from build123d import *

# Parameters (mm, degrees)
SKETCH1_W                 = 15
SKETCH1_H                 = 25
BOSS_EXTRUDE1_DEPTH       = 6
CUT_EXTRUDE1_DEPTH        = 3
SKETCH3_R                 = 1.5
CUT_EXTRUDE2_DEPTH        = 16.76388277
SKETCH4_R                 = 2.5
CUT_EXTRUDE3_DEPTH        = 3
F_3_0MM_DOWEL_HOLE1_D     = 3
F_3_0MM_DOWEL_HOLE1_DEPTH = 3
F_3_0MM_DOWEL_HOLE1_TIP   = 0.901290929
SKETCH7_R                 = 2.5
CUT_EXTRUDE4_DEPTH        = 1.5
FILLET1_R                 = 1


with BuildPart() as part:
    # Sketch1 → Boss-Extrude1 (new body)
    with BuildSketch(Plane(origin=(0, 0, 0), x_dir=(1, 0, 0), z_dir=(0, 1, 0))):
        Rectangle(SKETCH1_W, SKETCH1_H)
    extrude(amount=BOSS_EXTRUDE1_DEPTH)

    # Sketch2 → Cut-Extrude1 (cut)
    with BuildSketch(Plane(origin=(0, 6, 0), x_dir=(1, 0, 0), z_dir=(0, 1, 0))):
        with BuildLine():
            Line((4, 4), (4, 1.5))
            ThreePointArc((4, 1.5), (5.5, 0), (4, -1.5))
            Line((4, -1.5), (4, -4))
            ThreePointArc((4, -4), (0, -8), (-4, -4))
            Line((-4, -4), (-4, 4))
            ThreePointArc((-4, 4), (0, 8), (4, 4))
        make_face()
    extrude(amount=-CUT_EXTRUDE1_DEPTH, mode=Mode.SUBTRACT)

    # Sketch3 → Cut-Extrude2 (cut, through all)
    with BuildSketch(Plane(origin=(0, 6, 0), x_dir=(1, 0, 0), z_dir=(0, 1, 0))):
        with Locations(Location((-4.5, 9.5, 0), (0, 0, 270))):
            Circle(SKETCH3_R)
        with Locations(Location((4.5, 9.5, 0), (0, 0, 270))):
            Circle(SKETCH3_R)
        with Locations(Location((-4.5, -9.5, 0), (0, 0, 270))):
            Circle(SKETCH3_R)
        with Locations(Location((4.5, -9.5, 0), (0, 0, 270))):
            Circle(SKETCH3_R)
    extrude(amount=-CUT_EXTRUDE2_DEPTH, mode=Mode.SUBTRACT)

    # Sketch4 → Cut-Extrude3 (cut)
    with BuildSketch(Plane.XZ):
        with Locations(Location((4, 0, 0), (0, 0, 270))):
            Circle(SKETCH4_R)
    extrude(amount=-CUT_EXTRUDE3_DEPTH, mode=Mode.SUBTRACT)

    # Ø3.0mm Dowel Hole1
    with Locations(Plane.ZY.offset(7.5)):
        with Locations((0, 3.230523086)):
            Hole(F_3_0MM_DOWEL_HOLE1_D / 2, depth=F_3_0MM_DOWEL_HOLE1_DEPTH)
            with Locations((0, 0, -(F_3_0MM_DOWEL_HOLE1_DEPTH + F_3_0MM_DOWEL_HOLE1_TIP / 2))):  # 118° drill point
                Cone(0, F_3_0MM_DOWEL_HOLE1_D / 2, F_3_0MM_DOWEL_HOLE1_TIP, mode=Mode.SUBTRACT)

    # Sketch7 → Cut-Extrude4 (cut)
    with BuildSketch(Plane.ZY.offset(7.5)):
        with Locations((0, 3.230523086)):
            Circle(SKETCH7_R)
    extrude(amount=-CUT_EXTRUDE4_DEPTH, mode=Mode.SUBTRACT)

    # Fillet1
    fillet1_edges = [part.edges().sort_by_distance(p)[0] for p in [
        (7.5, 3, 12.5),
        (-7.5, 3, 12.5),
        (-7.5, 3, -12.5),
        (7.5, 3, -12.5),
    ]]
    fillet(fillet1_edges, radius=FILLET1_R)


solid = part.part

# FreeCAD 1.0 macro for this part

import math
import FreeCAD as App
import Part
import Sketcher


def edges_at(feature, points):
    """Names of the edges that pass closest to the given points."""
    edges = feature.Shape.Edges
    near = lambda p: min(range(len(edges)), key=lambda i: edges[i].distToShape(Part.Vertex(*p))[0])
    return sorted({f"Edge{near(p) + 1}" for p in points})


def add_polygon(sketch, points):
    """Adds a closed chain of lines whose ends are joined by coincident constraints."""
    first, n = sketch.GeometryCount, len(points)
    for a, b in zip(points, points[1:] + points[:1]):
        sketch.addGeometry(Part.LineSegment(App.Vector(*a, 0), App.Vector(*b, 0)), False)
    for i in range(n):
        sketch.addConstraint(Sketcher.Constraint("Coincident", first + i, 2, first + (i + 1) % n, 1))

doc = App.newDocument("Part")
params = doc.addObject("Spreadsheet::Sheet", "Params")
for row, (alias, value) in enumerate([
    ("sketch1_width", "15 mm"),
    ("sketch1_height", "25 mm"),
    ("pad1_length", "6 mm"),
    ("sketch2_radius", "4 mm"),
    ("sketch2_radius2", "1.5 mm"),
    ("sketch2_height", "8 mm"),
    ("pocket1_length", "3 mm"),
    ("sketch3_diameter", "3 mm"),
    ("sketch4_diameter", "5 mm"),
    ("pocket3_length", "3 mm"),
    ("sketch5_diameter", "3 mm"),
    ("hole_diameter", "3 mm"),
    ("hole_depth", "3 mm"),
    ("sketch6_diameter", "5 mm"),
    ("pocket4_length", "1.5 mm"),
    ("fillet_radius", "1 mm"),
], start=1):
    params.set(f"A{row}", alias)
    params.set(f"B{row}", "=" + value)
    params.setAlias(f"B{row}", alias)

body = doc.addObject("PartDesign::Body", "Body")

# Sketch on XZ plane
sketch1 = body.newObject("Sketcher::SketchObject", "Sketch")
sketch1.AttachmentSupport = (doc.getObject("XZ_Plane"), [""])
sketch1.MapMode = "FlatFace"
add_polygon(sketch1, [(-7.5, -12.5), (-7.5, 12.5), (7.5, 12.5), (7.5, -12.5)])  # lines 0-3
sketch1.addConstraint(Sketcher.Constraint("Vertical", 0))
sketch1.addConstraint(Sketcher.Constraint("Horizontal", 1))
sketch1.addConstraint(Sketcher.Constraint("Vertical", 2))
sketch1.addConstraint(Sketcher.Constraint("Horizontal", 3))
sketch1.addConstraint(Sketcher.Constraint("Symmetric", 0, 2, 2, 2, -1, 1))
sketch1.addConstraint(Sketcher.Constraint("DistanceX", 1, 1, 1, 2, 15.0))
sketch1.addConstraint(Sketcher.Constraint("DistanceY", 0, 1, 0, 2, 25.0))
sketch1.setExpression("Constraints[9]", "Params.sketch1_width")
sketch1.setExpression("Constraints[10]", "Params.sketch1_height")
pad1 = body.newObject("PartDesign::Pad", "Pad")
pad1.Profile = sketch1
pad1.setExpression("Length", "Params.pad1_length")
pad1.Reversed = True

# Sketch on XZ plane
sketch2 = body.newObject("Sketcher::SketchObject", "Sketch001")
sketch2.AttachmentSupport = (doc.getObject("XZ_Plane"), [""])
sketch2.MapMode = "FlatFace"
sketch2.AttachmentOffset = App.Placement(App.Vector(0, 0, -6), App.Rotation())
sketch2.addGeometry(Part.LineSegment(App.Vector(4, -1.5, 0), App.Vector(4, -4, 0)), False)
sketch2.addGeometry(Part.ArcOfCircle(Part.Circle(App.Vector(0, -4, 0), App.Vector(0, 0, 1), 4), math.radians(180), math.radians(360)), False)
sketch2.addGeometry(Part.LineSegment(App.Vector(-4, -4, 0), App.Vector(-4, 4, 0)), False)
sketch2.addGeometry(Part.ArcOfCircle(Part.Circle(App.Vector(0, 4, 0), App.Vector(0, 0, 1), 4), math.radians(0), math.radians(180)), False)
sketch2.addGeometry(Part.LineSegment(App.Vector(4, 4, 0), App.Vector(4, 1.5, 0)), False)
sketch2.addGeometry(Part.ArcOfCircle(Part.Circle(App.Vector(4, 0, 0), App.Vector(0, 0, 1), 1.5), math.radians(-90), math.radians(90)), False)
sketch2.addConstraint(Sketcher.Constraint("Tangent", 0, 2, 1, 2))
sketch2.addConstraint(Sketcher.Constraint("Tangent", 1, 1, 2, 1))
sketch2.addConstraint(Sketcher.Constraint("Tangent", 2, 2, 3, 2))
sketch2.addConstraint(Sketcher.Constraint("Tangent", 3, 1, 4, 1))
sketch2.addConstraint(Sketcher.Constraint("Coincident", 4, 2, 5, 2))
sketch2.addConstraint(Sketcher.Constraint("Coincident", 5, 1, 0, 1))
sketch2.addConstraint(Sketcher.Constraint("Vertical", 0))
sketch2.addConstraint(Sketcher.Constraint("Vertical", 2))
sketch2.addConstraint(Sketcher.Constraint("Vertical", 4))
sketch2.addConstraint(Sketcher.Constraint("Equal", 1, 3))
sketch2.addConstraint(Sketcher.Constraint("Symmetric", 1, 3, 3, 3, -1, 1))
sketch2.addConstraint(Sketcher.Constraint("PointOnObject", 5, 3, -1))
sketch2.addConstraint(Sketcher.Constraint("Vertical", 5, 3, 0, 2))
sketch2.addConstraint(Sketcher.Constraint("Radius", 1, 4.0))
sketch2.addConstraint(Sketcher.Constraint("Radius", 5, 1.5))
sketch2.addConstraint(Sketcher.Constraint("DistanceY", 2, 1, 2, 2, 8.0))
sketch2.setExpression("Constraints[13]", "Params.sketch2_radius")
sketch2.setExpression("Constraints[14]", "Params.sketch2_radius2")
sketch2.setExpression("Constraints[15]", "Params.sketch2_height")
pocket1 = body.newObject("PartDesign::Pocket", "Pocket")
pocket1.Profile = sketch2
pocket1.setExpression("Length", "Params.pocket1_length")
pocket1.Reversed = True

# Sketch on XZ plane
sketch3 = body.newObject("Sketcher::SketchObject", "Sketch002")
sketch3.AttachmentSupport = (doc.getObject("XZ_Plane"), [""])
sketch3.MapMode = "FlatFace"
sketch3.AttachmentOffset = App.Placement(App.Vector(0, 0, -6), App.Rotation())
sketch3.addGeometry(Part.Circle(App.Vector(-4.5, -9.5, 0), App.Vector(0, 0, 1), 1.5), False)
sketch3.addGeometry(Part.Circle(App.Vector(4.5, -9.5, 0), App.Vector(0, 0, 1), 1.5), False)
sketch3.addGeometry(Part.Circle(App.Vector(-4.5, 9.5, 0), App.Vector(0, 0, 1), 1.5), False)
sketch3.addGeometry(Part.Circle(App.Vector(4.5, 9.5, 0), App.Vector(0, 0, 1), 1.5), False)
sketch3.addConstraint(Sketcher.Constraint("Equal", 0, 1))
sketch3.addConstraint(Sketcher.Constraint("Equal", 1, 2))
sketch3.addConstraint(Sketcher.Constraint("Equal", 2, 3))
sketch3.addConstraint(Sketcher.Constraint("Symmetric", 1, 3, 2, 3, -1, 1))
sketch3.addConstraint(Sketcher.Constraint("Symmetric", 0, 3, 3, 3, -1, 1))
sketch3.addConstraint(Sketcher.Constraint("Symmetric", 0, 3, 1, 3, -2))
sketch3.addConstraint(Sketcher.Constraint("Diameter", 0, 3.0))
sketch3.addConstraint(Sketcher.Constraint("DistanceX", 0, 3, 1, 3, 9.0))
sketch3.addConstraint(Sketcher.Constraint("DistanceY", 0, 3, 2, 3, 19.0))
sketch3.setExpression("Constraints[6]", "Params.sketch3_diameter")
pocket2 = body.newObject("PartDesign::Pocket", "Pocket001")
pocket2.Profile = sketch3
pocket2.Type = "ThroughAll"
pocket2.Reversed = True

# Sketch on XZ plane
sketch4 = body.newObject("Sketcher::SketchObject", "Sketch003")
sketch4.AttachmentSupport = (doc.getObject("XZ_Plane"), [""])
sketch4.MapMode = "FlatFace"
sketch4.addGeometry(Part.Circle(App.Vector(4, 0, 0), App.Vector(0, 0, 1), 2.5), False)
sketch4.addConstraint(Sketcher.Constraint("PointOnObject", 0, 3, -1))
sketch4.addConstraint(Sketcher.Constraint("Diameter", 0, 5.0))
sketch4.addConstraint(Sketcher.Constraint("DistanceX", -1, 1, 0, 3, 4.0))
sketch4.setExpression("Constraints[1]", "Params.sketch4_diameter")
pocket3 = body.newObject("PartDesign::Pocket", "Pocket002")
pocket3.Profile = sketch4
pocket3.setExpression("Length", "Params.pocket3_length")

# Sketch on YZ plane
sketch5 = body.newObject("Sketcher::SketchObject", "Sketch004")
sketch5.AttachmentSupport = (doc.getObject("YZ_Plane"), [""])
sketch5.MapMode = "FlatFace"
sketch5.AttachmentOffset = App.Placement(App.Vector(0, 0, -7.5), App.Rotation())
sketch5.addGeometry(Part.Circle(App.Vector(3.230523, 0, 0), App.Vector(0, 0, 1), 1.5), False)
sketch5.addConstraint(Sketcher.Constraint("PointOnObject", 0, 3, -1))
sketch5.addConstraint(Sketcher.Constraint("Diameter", 0, 3.0))
sketch5.addConstraint(Sketcher.Constraint("DistanceX", -1, 1, 0, 3, 3.230523))
sketch5.setExpression("Constraints[1]", "Params.sketch5_diameter")
doc.recompute()
hole = body.newObject("PartDesign::Hole", "Hole")
hole.Profile = sketch5
hole.ThreadType = "None"
hole.setExpression("Diameter", "Params.hole_diameter")
hole.DepthType = "Dimension"
hole.setExpression("Depth", "Params.hole_depth")
hole.DrillPoint = "Angled"
hole.DrillPointAngle = 118
hole.Reversed = True

# Sketch on YZ plane
sketch6 = body.newObject("Sketcher::SketchObject", "Sketch005")
sketch6.AttachmentSupport = (doc.getObject("YZ_Plane"), [""])
sketch6.MapMode = "FlatFace"
sketch6.AttachmentOffset = App.Placement(App.Vector(0, 0, -7.5), App.Rotation())
sketch6.addGeometry(Part.Circle(App.Vector(3.230523, 0, 0), App.Vector(0, 0, 1), 2.5), False)
sketch6.addConstraint(Sketcher.Constraint("PointOnObject", 0, 3, -1))
sketch6.addConstraint(Sketcher.Constraint("Diameter", 0, 5.0))
sketch6.addConstraint(Sketcher.Constraint("DistanceX", -1, 1, 0, 3, 3.230523))
sketch6.setExpression("Constraints[1]", "Params.sketch6_diameter")
pocket4 = body.newObject("PartDesign::Pocket", "Pocket003")
pocket4.Profile = sketch6
pocket4.setExpression("Length", "Params.pocket4_length")
pocket4.Reversed = True
doc.recompute()

fillet = body.newObject("PartDesign::Fillet", "Fillet")
fillet.Base = (pocket4, edges_at(pocket4, [
    (7.5, 3, 12.5),
    (-7.5, 3, 12.5),
    (-7.5, 3, -12.5),
    (7.5, 3, -12.5),
]))
fillet.setExpression("Radius", "Params.fillet_radius")

doc.recompute()
